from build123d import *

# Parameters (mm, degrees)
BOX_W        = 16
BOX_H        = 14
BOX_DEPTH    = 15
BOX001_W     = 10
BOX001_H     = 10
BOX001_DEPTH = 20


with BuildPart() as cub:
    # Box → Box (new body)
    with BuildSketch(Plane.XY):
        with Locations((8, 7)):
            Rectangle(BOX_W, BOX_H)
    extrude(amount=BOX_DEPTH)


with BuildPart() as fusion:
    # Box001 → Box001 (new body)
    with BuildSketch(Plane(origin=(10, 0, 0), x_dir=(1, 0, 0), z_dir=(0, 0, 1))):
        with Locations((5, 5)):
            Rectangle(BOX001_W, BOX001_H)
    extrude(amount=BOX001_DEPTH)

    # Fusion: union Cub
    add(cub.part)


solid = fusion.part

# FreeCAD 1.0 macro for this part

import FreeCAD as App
import Part
import Sketcher

V = App.Vector
Q = App.Units.Quantity


def add_polygon(sketch, points):
    """Adds a closed chain of lines whose ends are joined by coincident constraints."""
    first, n = sketch.GeometryCount, len(points)
    for a, b in zip(points, points[1:] + points[:1]):
        sketch.addGeometry(Part.LineSegment(App.Vector(*a, 0), App.Vector(*b, 0)), False)
    for i in range(n):
        sketch.addConstraint(Sketcher.Constraint("Coincident", first + i, 2, first + (i + 1) % n, 1))

doc = App.newDocument("Part")
body = doc.addObject("PartDesign::Body", "Body")

# Sketch on XY plane
sketch1 = body.newObject("Sketcher::SketchObject", "Sketch")
sketch1.AttachmentSupport = (doc.getObject("XY_Plane"), [""])
sketch1.MapMode = "FlatFace"
add_polygon(sketch1, [(0, 14), (0, 0), (16, 0), (16, 14)])  # lines 0-3
sketch1.addConstraint([
    Sketcher.Constraint("Vertical", 0),
    Sketcher.Constraint("Horizontal", 1),
    Sketcher.Constraint("Vertical", 2),
    Sketcher.Constraint("Horizontal", 3),
    Sketcher.Constraint("Coincident", 0, 2, -1, 1),
    Sketcher.Constraint("DistanceX", 1, 1, 1, 2, Q("16 mm")),
    Sketcher.Constraint("DistanceY", 0, 2, 0, 1, Q("14 mm")),
])
pad1 = body.newObject("PartDesign::Pad", "Pad")
pad1.Profile = sketch1
pad1.Length = 15
body2 = doc.addObject("PartDesign::Body", "Body001")

# Sketch on XY plane
sketch2 = body2.newObject("Sketcher::SketchObject", "Sketch001")
sketch2.AttachmentSupport = (doc.getObject("XY_Plane001"), [""])
sketch2.MapMode = "FlatFace"
add_polygon(sketch2, [(10, 10), (10, 0), (20, 0), (20, 10)])  # lines 0-3
sketch2.addConstraint([
    Sketcher.Constraint("Vertical", 0),
    Sketcher.Constraint("Horizontal", 1),
    Sketcher.Constraint("Vertical", 2),
    Sketcher.Constraint("Horizontal", 3),
    Sketcher.Constraint("PointOnObject", 0, 2, -1),
    Sketcher.Constraint("Equal", 3, 0),
    Sketcher.Constraint("DistanceX", 1, 1, 1, 2, Q("10 mm")),
    Sketcher.Constraint("DistanceX", -1, 1, 0, 2, Q("10 mm")),
])
pad2 = body2.newObject("PartDesign::Pad", "Pad001")
pad2.Profile = sketch2
pad2.Length = 20
doc.recompute()

boolean = body2.newObject("PartDesign::Boolean", "Boolean")
boolean.Type = "Fuse"
boolean.addObjects([body])

doc.recompute()
